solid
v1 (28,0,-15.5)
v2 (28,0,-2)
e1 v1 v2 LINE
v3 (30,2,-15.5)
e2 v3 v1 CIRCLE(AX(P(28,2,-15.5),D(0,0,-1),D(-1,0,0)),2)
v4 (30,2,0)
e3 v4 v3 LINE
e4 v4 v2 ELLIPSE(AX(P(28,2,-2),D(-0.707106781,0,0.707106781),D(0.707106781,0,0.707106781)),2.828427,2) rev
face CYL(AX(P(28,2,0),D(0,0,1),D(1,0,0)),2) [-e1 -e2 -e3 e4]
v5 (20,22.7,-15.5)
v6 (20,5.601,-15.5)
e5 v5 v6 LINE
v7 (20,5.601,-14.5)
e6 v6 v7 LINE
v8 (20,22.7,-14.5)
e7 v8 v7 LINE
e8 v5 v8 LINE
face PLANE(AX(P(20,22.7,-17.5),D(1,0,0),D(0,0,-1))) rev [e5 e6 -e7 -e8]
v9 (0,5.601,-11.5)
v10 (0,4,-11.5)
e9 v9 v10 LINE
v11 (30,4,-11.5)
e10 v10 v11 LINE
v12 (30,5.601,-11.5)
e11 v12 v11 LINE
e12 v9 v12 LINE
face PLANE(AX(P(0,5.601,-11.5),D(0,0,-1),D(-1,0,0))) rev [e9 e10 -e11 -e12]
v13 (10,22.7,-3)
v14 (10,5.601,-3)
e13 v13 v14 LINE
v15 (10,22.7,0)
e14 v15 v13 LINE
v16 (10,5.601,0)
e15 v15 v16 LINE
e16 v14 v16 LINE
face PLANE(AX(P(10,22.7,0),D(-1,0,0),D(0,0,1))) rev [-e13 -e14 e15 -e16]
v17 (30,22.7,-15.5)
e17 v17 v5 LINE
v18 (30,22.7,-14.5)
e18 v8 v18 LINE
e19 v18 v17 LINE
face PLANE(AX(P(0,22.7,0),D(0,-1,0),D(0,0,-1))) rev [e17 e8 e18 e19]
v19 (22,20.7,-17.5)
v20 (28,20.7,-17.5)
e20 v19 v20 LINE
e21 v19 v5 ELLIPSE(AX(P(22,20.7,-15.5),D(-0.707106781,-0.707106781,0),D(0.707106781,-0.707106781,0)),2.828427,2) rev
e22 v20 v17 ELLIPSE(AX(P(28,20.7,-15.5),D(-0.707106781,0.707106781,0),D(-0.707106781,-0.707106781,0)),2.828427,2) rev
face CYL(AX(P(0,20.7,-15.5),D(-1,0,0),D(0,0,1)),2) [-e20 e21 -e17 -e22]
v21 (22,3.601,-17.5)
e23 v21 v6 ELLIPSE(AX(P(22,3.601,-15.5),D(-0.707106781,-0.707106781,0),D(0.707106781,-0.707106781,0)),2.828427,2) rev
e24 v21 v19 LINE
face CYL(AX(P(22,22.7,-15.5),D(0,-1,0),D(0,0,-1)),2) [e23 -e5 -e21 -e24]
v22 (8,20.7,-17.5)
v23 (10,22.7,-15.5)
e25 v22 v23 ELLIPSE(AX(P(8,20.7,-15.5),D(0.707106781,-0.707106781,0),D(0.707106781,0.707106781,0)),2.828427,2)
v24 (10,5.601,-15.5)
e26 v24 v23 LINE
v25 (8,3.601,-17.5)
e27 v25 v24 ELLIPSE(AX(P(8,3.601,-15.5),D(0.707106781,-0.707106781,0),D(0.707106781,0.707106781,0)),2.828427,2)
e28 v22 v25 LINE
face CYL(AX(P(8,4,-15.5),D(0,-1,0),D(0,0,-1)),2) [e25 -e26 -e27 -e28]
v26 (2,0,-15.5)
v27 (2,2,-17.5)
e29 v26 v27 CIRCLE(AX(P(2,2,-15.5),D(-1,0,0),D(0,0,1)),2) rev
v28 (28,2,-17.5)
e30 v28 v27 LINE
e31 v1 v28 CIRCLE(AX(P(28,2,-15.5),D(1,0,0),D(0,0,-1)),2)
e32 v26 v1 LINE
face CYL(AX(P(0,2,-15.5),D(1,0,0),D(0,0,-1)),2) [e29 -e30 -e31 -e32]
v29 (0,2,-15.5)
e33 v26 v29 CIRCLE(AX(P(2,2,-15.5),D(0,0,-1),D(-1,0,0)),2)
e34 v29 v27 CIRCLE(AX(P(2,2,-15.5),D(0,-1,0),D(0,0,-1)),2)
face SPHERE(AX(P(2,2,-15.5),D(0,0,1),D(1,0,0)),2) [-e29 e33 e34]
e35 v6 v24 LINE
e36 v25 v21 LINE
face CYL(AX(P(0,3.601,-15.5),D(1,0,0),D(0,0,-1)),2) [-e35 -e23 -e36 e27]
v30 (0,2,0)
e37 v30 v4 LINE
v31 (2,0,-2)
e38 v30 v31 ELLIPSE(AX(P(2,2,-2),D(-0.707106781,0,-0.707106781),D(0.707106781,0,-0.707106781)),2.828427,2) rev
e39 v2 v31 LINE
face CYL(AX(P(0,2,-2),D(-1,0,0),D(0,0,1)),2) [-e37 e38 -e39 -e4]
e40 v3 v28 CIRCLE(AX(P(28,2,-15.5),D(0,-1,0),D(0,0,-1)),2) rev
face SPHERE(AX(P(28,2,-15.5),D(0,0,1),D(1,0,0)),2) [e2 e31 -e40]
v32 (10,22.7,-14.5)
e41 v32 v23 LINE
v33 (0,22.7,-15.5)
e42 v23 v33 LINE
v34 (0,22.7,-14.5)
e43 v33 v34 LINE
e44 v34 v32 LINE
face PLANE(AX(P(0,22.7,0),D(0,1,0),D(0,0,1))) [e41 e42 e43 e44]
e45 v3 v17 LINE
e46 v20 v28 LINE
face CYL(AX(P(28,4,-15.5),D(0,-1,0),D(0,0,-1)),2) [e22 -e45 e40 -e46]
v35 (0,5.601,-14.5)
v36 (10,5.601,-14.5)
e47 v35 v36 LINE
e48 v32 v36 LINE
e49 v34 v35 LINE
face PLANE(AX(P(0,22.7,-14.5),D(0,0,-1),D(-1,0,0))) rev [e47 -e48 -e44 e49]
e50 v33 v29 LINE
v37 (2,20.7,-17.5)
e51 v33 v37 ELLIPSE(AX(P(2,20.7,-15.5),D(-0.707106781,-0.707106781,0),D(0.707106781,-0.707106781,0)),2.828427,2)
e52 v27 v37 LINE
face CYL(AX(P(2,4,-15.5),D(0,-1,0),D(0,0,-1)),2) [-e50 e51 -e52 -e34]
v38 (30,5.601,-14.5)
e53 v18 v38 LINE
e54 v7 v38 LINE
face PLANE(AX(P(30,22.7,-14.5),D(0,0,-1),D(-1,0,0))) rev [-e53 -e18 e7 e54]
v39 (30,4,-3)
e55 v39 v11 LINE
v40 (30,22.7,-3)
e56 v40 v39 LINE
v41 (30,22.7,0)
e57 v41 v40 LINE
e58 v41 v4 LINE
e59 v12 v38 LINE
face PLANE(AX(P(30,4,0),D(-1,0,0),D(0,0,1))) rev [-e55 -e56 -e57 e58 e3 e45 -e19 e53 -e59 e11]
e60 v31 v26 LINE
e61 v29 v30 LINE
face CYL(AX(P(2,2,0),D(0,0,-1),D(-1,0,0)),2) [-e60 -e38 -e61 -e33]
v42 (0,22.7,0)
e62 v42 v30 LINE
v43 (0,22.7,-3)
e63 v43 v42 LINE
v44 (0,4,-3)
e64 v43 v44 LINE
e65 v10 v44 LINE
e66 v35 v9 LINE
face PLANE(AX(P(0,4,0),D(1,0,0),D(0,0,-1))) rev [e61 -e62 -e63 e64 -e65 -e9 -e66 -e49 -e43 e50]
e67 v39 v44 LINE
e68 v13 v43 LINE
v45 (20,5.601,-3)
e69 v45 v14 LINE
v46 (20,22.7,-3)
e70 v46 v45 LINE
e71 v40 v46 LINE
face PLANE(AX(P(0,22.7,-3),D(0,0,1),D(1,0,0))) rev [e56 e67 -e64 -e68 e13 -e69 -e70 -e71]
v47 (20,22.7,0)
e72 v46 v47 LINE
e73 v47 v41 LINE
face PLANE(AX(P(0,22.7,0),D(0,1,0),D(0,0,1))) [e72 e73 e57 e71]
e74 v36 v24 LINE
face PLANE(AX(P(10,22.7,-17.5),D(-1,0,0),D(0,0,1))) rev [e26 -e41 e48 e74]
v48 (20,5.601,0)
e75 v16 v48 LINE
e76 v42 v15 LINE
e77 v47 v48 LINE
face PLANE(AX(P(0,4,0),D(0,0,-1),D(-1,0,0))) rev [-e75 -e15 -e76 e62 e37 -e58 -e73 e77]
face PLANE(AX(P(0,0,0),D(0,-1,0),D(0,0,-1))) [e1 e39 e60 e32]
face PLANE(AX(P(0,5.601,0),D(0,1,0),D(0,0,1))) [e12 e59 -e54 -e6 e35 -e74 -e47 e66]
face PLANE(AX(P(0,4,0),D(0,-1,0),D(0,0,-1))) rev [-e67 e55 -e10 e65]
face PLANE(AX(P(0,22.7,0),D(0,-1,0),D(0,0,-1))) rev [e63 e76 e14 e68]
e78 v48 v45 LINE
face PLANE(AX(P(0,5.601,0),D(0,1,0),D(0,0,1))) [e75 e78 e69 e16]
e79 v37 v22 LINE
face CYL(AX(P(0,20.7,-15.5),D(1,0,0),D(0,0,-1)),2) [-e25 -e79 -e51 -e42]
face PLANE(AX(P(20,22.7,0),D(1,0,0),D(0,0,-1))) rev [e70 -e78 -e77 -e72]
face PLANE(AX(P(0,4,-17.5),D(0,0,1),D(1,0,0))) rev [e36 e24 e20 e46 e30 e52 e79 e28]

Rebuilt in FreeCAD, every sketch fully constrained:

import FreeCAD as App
import Part
import Sketcher
Q = App.Units.Quantity


def edges_at(feature, points):
    """Names of the edges that pass closest to the given points."""
    edges = feature.Shape.Edges
    near = lambda p: min(range(len(edges)), key=lambda i: edges[i].distToShape(Part.Vertex(*p))[0])
    return sorted({f"Edge{near(p) + 1}" for p in points})


def add_polygon(sketch, points):
    """Adds a closed chain of lines whose ends are joined by coincident constraints."""
    first, n = sketch.GeometryCount, len(points)
    for a, b in zip(points, points[1:] + points[:1]):
        sketch.addGeometry(Part.LineSegment(App.Vector(*a, 0), App.Vector(*b, 0)), False)
    for i in range(n):
        sketch.addConstraint(Sketcher.Constraint("Coincident", first + i, 2, first + (i + 1) % n, 1))

doc = App.newDocument("Part")
body = doc.addObject("PartDesign::Body", "Body")

# Sketch on XZ plane
sketch1 = doc.addObject("Sketcher::SketchObject", "Sketch")
body.addObject(sketch1)
sketch1.AttachmentSupport = (doc.XZ_Plane, [""])
sketch1.MapMode = "FlatFace"
add_polygon(sketch1, [(0, -18), (0, 0), (30, 0), (30, -18)])  # lines 0-3
sketch1.addConstraint([
    Sketcher.Constraint("Vertical", 0),
    Sketcher.Constraint("Horizontal", 1),
    Sketcher.Constraint("Vertical", 2),
    Sketcher.Constraint("Horizontal", 3),
    Sketcher.Constraint("Coincident", 0, 2, -1, 1),
    Sketcher.Constraint("DistanceX", 1, 1, 1, 2, Q("30 mm")),
    Sketcher.Constraint("DistanceY", 0, 1, 0, 2, Q("17.5 mm")),
])
pad1 = doc.addObject("PartDesign::Pad", "Pad")
body.addObject(pad1)
pad1.Profile = sketch1
pad1.Length = 4
pad1.Reversed = True

# Sketch on XZ plane
sketch2 = doc.addObject("Sketcher::SketchObject", "Sketch001")
body.addObject(sketch2)
sketch2.AttachmentSupport = (doc.XZ_Plane, [""])
sketch2.MapMode = "FlatFace"
sketch2.AttachmentOffset = App.Placement(App.Vector(0, 0, -4), App.Rotation())
add_polygon(sketch2, [(0, -18), (0, -12), (30, -12), (30, -18)])  # lines 0-3
sketch2.addConstraint([
    Sketcher.Constraint("Vertical", 0),
    Sketcher.Constraint("Horizontal", 1),
    Sketcher.Constraint("Vertical", 2),
    Sketcher.Constraint("Horizontal", 3),
    Sketcher.Constraint("PointOnObject", 0, 2, -2),
    Sketcher.Constraint("DistanceX", 1, 1, 1, 2, Q("30 mm")),
    Sketcher.Constraint("DistanceY", 0, 1, 0, 2, Q("6 mm")),
    Sketcher.Constraint("DistanceY", 0, 2, -1, 1, Q("11.5 mm")),
])
pad2 = doc.addObject("PartDesign::Pad", "Pad001")
body.addObject(pad2)
pad2.Profile = sketch2
pad2.Length = 1.601
pad2.Reversed = True

# Sketch on XZ plane
sketch3 = doc.addObject("Sketcher::SketchObject", "Sketch002")
body.addObject(sketch3)
sketch3.AttachmentSupport = (doc.XZ_Plane, [""])
sketch3.MapMode = "FlatFace"
sketch3.AttachmentOffset = App.Placement(App.Vector(0, 0, -4), App.Rotation())
add_polygon(sketch3, [(0, -3), (0, 0), (10, 0), (10, -3)])  # lines 0-3
add_polygon(sketch3, [(20, -3), (20, 0), (30, 0), (30, -3)])  # lines 4-7
sketch3.addConstraint([
    Sketcher.Constraint("Vertical", 0),
    Sketcher.Constraint("Horizontal", 1),
    Sketcher.Constraint("Vertical", 2),
    Sketcher.Constraint("Horizontal", 3),
    Sketcher.Constraint("Vertical", 4),
    Sketcher.Constraint("Horizontal", 5),
    Sketcher.Constraint("Vertical", 6),
    Sketcher.Constraint("Horizontal", 7),
    Sketcher.Constraint("Coincident", 0, 2, -1, 1),
    Sketcher.Constraint("PointOnObject", 4, 2, -1),
    Sketcher.Constraint("Horizontal", 3, 2, 6, 2),
    Sketcher.Constraint("Equal", 3, 5),
    Sketcher.Constraint("DistanceX", 1, 1, 1, 2, Q("10 mm")),
    Sketcher.Constraint("DistanceY", 0, 1, 0, 2, Q("3 mm")),
    Sketcher.Constraint("DistanceX", -1, 1, 4, 2, Q("20 mm")),
])
pad3 = doc.addObject("PartDesign::Pad", "Pad002")
body.addObject(pad3)
pad3.Profile = sketch3
pad3.Length = 18.7
pad3.Reversed = True

# Sketch on XZ plane
sketch4 = doc.addObject("Sketcher::SketchObject", "Sketch003")
body.addObject(sketch4)
sketch4.AttachmentSupport = (doc.XZ_Plane, [""])
sketch4.MapMode = "FlatFace"
sketch4.AttachmentOffset = App.Placement(App.Vector(0, 0, -5.601), App.Rotation())
add_polygon(sketch4, [(0, -17.5), (0, -14.5), (10, -14.5), (10, -17.5)])  # lines 0-3
add_polygon(sketch4, [(20, -17.5), (20, -14.5), (30, -14.5), (30, -17.5)])  # lines 4-7
sketch4.addConstraint([
    Sketcher.Constraint("Vertical", 0),
    Sketcher.Constraint("Horizontal", 1),
    Sketcher.Constraint("Vertical", 2),
    Sketcher.Constraint("Horizontal", 3),
    Sketcher.Constraint("Vertical", 4),
    Sketcher.Constraint("Horizontal", 5),
    Sketcher.Constraint("Vertical", 6),
    Sketcher.Constraint("Horizontal", 7),
    Sketcher.Constraint("PointOnObject", 0, 2, -2),
    Sketcher.Constraint("Horizontal", 1, 2, 4, 2),
    Sketcher.Constraint("Horizontal", 3, 2, 6, 2),
    Sketcher.Constraint("Equal", 3, 5),
    Sketcher.Constraint("DistanceX", 1, 1, 1, 2, Q("10 mm")),
    Sketcher.Constraint("DistanceY", 0, 1, 0, 2, Q("3 mm")),
    Sketcher.Constraint("DistanceX", -1, 1, 4, 2, Q("20 mm")),
    Sketcher.Constraint("DistanceY", 0, 2, -1, 1, Q("14.5 mm")),
])
pad4 = doc.addObject("PartDesign::Pad", "Pad003")
body.addObject(pad4)
pad4.Profile = sketch4
pad4.Length = 17.099
pad4.Reversed = True

# Sketch on XZ plane
sketch5 = doc.addObject("Sketcher::SketchObject", "Sketch004")
body.addObject(sketch5)
sketch5.AttachmentSupport = (doc.XZ_Plane, [""])
sketch5.MapMode = "FlatFace"
sketch5.AttachmentOffset = App.Placement(App.Vector(0, 0, -4), App.Rotation())
add_polygon(sketch5, [(10, -3), (10, 0), (20, 0), (20, -3)])  # lines 0-3
sketch5.addConstraint([
    Sketcher.Constraint("Vertical", 0),
    Sketcher.Constraint("Horizontal", 1),
    Sketcher.Constraint("Vertical", 2),
    Sketcher.Constraint("Horizontal", 3),
    Sketcher.Constraint("PointOnObject", 0, 2, -1),
    Sketcher.Constraint("DistanceX", 1, 1, 1, 2, Q("10 mm")),
    Sketcher.Constraint("DistanceY", 0, 1, 0, 2, Q("3 mm")),
    Sketcher.Constraint("DistanceX", -1, 1, 0, 2, Q("10 mm")),
])
pad5 = doc.addObject("PartDesign::Pad", "Pad004")
body.addObject(pad5)
pad5.Profile = sketch5
pad5.Length = 1.601
pad5.Reversed = True
doc.recompute()

fillet = doc.addObject("PartDesign::Fillet", "Fillet")
body.addObject(fillet)
fillet.Base = (pad5, edges_at(pad5, [
    (15, 0, -17.5),
    (30, 0, -8.75),
    (15, 0, 0),
    (10, 14.15, -17.5),
    (5, 22.7, -17.5),
    (0, 0, -8.75),
    (15, 5.601, -17.5),
    (20, 14.15, -17.5),
    (25, 22.7, -17.5),
    (0, 11.35, -17.5),
    (30, 11.35, -17.5),
]))
fillet.Radius = 2

doc.recompute()
